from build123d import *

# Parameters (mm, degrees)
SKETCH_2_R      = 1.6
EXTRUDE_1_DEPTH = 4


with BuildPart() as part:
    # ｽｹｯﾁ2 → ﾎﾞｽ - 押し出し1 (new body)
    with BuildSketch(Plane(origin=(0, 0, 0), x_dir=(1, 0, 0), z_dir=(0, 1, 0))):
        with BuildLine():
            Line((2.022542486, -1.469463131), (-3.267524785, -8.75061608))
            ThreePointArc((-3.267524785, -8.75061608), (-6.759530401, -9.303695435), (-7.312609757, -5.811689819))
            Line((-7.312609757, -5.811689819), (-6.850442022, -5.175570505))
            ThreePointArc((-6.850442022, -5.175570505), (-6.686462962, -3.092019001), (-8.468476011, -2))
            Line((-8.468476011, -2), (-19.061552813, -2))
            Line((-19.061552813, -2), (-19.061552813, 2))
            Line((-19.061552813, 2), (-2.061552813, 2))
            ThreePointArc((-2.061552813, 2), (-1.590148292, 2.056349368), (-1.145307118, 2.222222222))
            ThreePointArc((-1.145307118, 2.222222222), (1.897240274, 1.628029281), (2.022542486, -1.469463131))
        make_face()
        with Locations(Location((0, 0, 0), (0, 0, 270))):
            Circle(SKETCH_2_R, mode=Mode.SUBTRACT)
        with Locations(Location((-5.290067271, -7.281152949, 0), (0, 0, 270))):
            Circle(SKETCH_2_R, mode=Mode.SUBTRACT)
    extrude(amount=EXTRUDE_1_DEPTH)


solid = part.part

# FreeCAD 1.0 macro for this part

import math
import FreeCAD as App
import Part
import Sketcher
Q = App.Units.Quantity

doc = App.newDocument("Part")
body = doc.addObject("PartDesign::Body", "Body")

# Sketch on XZ plane
sketch1 = doc.addObject("Sketcher::SketchObject", "Sketch")
body.addObject(sketch1)
sketch1.AttachmentSupport = (doc.XZ_Plane, [""])
sketch1.MapMode = "FlatFace"
sketch1.addGeometry([
    Part.LineSegment(App.Vector(-3.3, 8.8, 0), App.Vector(2, 1.5, 0)),  # 0
    Part.ArcOfCircle(Part.Circle(App.Vector(0, 0, 0), App.Vector(0, 0, 1), 2.5), math.radians(-117), math.radians(36)),  # 1
    Part.ArcOfCircle(Part.Circle(App.Vector(-2.1, -4, 0), App.Vector(0, 0, 1), 2), math.radians(63), math.radians(90)),  # 2
    Part.LineSegment(App.Vector(-2.1, -2, 0), App.Vector(-19.1, -2, 0)),  # 3
    Part.LineSegment(App.Vector(-19.1, -2, 0), App.Vector(-19.1, 2, 0)),  # 4
    Part.LineSegment(App.Vector(-19.1, 2, 0), App.Vector(-8.5, 2, 0)),  # 5
    Part.ArcOfCircle(Part.Circle(App.Vector(-8.5, 4, 0), App.Vector(0, 0, 1), 2), math.radians(-90), math.radians(36)),  # 6
    Part.LineSegment(App.Vector(-6.9, 5.2, 0), App.Vector(-7.3, 5.8, 0)),  # 7
    Part.ArcOfCircle(Part.Circle(App.Vector(-5.3, 7.3, 0), App.Vector(0, 0, 1), 2.5), math.radians(36), math.radians(216)),  # 8
    Part.Circle(App.Vector(-5.3, 7.3, 0), App.Vector(0, 0, 1), 1.6),  # 9
    Part.Circle(App.Vector(0, 0, 0), App.Vector(0, 0, 1), 1.6),  # 10
], False)
sketch1.addConstraint([
    Sketcher.Constraint("Tangent", 0, 2, 1, 2),
    Sketcher.Constraint("Tangent", 1, 1, 2, 1),
    Sketcher.Constraint("Tangent", 2, 2, 3, 1),
    Sketcher.Constraint("Coincident", 3, 2, 4, 1),
    Sketcher.Constraint("Coincident", 4, 2, 5, 1),
    Sketcher.Constraint("Tangent", 5, 2, 6, 1),
    Sketcher.Constraint("Tangent", 6, 2, 7, 1),
    Sketcher.Constraint("Tangent", 7, 2, 8, 2),
    Sketcher.Constraint("Tangent", 8, 1, 0, 1),
    Sketcher.Constraint("Horizontal", 3),
    Sketcher.Constraint("Vertical", 4),
    Sketcher.Constraint("Horizontal", 5),
    Sketcher.Constraint("Coincident", 1, 3, -1, 1),
    Sketcher.Constraint("Coincident", 10, 3, -1, 1),
    Sketcher.Constraint("Coincident", 9, 3, 8, 3),
    Sketcher.Constraint("Equal", 2, 6),
    Sketcher.Constraint("Equal", 1, 8),
    Sketcher.Constraint("Equal", 9, 10),
    Sketcher.Constraint("Parallel", 0, 7),
    Sketcher.Constraint("Radius", 2, 2.0),
    Sketcher.Constraint("Diameter", 9, 3.2),
    Sketcher.Constraint("Radius", 1, 2.5),
    Sketcher.Constraint("DistanceX", 3, 2, 3, 1, 17.0),
    Sketcher.Constraint("DistanceY", 4, 1, 4, 2, 4.0),
    Sketcher.Constraint("Angle", 0, Q("-54 deg")),
    Sketcher.Constraint("Distance", 0, 9.0),
    Sketcher.Constraint("DistanceY", 2, 3, -1, 1, 4.0),
])
pad1 = doc.addObject("PartDesign::Pad", "Pad")
body.addObject(pad1)
pad1.Profile = sketch1
pad1.Length = 4
pad1.Reversed = True

doc.recompute()
